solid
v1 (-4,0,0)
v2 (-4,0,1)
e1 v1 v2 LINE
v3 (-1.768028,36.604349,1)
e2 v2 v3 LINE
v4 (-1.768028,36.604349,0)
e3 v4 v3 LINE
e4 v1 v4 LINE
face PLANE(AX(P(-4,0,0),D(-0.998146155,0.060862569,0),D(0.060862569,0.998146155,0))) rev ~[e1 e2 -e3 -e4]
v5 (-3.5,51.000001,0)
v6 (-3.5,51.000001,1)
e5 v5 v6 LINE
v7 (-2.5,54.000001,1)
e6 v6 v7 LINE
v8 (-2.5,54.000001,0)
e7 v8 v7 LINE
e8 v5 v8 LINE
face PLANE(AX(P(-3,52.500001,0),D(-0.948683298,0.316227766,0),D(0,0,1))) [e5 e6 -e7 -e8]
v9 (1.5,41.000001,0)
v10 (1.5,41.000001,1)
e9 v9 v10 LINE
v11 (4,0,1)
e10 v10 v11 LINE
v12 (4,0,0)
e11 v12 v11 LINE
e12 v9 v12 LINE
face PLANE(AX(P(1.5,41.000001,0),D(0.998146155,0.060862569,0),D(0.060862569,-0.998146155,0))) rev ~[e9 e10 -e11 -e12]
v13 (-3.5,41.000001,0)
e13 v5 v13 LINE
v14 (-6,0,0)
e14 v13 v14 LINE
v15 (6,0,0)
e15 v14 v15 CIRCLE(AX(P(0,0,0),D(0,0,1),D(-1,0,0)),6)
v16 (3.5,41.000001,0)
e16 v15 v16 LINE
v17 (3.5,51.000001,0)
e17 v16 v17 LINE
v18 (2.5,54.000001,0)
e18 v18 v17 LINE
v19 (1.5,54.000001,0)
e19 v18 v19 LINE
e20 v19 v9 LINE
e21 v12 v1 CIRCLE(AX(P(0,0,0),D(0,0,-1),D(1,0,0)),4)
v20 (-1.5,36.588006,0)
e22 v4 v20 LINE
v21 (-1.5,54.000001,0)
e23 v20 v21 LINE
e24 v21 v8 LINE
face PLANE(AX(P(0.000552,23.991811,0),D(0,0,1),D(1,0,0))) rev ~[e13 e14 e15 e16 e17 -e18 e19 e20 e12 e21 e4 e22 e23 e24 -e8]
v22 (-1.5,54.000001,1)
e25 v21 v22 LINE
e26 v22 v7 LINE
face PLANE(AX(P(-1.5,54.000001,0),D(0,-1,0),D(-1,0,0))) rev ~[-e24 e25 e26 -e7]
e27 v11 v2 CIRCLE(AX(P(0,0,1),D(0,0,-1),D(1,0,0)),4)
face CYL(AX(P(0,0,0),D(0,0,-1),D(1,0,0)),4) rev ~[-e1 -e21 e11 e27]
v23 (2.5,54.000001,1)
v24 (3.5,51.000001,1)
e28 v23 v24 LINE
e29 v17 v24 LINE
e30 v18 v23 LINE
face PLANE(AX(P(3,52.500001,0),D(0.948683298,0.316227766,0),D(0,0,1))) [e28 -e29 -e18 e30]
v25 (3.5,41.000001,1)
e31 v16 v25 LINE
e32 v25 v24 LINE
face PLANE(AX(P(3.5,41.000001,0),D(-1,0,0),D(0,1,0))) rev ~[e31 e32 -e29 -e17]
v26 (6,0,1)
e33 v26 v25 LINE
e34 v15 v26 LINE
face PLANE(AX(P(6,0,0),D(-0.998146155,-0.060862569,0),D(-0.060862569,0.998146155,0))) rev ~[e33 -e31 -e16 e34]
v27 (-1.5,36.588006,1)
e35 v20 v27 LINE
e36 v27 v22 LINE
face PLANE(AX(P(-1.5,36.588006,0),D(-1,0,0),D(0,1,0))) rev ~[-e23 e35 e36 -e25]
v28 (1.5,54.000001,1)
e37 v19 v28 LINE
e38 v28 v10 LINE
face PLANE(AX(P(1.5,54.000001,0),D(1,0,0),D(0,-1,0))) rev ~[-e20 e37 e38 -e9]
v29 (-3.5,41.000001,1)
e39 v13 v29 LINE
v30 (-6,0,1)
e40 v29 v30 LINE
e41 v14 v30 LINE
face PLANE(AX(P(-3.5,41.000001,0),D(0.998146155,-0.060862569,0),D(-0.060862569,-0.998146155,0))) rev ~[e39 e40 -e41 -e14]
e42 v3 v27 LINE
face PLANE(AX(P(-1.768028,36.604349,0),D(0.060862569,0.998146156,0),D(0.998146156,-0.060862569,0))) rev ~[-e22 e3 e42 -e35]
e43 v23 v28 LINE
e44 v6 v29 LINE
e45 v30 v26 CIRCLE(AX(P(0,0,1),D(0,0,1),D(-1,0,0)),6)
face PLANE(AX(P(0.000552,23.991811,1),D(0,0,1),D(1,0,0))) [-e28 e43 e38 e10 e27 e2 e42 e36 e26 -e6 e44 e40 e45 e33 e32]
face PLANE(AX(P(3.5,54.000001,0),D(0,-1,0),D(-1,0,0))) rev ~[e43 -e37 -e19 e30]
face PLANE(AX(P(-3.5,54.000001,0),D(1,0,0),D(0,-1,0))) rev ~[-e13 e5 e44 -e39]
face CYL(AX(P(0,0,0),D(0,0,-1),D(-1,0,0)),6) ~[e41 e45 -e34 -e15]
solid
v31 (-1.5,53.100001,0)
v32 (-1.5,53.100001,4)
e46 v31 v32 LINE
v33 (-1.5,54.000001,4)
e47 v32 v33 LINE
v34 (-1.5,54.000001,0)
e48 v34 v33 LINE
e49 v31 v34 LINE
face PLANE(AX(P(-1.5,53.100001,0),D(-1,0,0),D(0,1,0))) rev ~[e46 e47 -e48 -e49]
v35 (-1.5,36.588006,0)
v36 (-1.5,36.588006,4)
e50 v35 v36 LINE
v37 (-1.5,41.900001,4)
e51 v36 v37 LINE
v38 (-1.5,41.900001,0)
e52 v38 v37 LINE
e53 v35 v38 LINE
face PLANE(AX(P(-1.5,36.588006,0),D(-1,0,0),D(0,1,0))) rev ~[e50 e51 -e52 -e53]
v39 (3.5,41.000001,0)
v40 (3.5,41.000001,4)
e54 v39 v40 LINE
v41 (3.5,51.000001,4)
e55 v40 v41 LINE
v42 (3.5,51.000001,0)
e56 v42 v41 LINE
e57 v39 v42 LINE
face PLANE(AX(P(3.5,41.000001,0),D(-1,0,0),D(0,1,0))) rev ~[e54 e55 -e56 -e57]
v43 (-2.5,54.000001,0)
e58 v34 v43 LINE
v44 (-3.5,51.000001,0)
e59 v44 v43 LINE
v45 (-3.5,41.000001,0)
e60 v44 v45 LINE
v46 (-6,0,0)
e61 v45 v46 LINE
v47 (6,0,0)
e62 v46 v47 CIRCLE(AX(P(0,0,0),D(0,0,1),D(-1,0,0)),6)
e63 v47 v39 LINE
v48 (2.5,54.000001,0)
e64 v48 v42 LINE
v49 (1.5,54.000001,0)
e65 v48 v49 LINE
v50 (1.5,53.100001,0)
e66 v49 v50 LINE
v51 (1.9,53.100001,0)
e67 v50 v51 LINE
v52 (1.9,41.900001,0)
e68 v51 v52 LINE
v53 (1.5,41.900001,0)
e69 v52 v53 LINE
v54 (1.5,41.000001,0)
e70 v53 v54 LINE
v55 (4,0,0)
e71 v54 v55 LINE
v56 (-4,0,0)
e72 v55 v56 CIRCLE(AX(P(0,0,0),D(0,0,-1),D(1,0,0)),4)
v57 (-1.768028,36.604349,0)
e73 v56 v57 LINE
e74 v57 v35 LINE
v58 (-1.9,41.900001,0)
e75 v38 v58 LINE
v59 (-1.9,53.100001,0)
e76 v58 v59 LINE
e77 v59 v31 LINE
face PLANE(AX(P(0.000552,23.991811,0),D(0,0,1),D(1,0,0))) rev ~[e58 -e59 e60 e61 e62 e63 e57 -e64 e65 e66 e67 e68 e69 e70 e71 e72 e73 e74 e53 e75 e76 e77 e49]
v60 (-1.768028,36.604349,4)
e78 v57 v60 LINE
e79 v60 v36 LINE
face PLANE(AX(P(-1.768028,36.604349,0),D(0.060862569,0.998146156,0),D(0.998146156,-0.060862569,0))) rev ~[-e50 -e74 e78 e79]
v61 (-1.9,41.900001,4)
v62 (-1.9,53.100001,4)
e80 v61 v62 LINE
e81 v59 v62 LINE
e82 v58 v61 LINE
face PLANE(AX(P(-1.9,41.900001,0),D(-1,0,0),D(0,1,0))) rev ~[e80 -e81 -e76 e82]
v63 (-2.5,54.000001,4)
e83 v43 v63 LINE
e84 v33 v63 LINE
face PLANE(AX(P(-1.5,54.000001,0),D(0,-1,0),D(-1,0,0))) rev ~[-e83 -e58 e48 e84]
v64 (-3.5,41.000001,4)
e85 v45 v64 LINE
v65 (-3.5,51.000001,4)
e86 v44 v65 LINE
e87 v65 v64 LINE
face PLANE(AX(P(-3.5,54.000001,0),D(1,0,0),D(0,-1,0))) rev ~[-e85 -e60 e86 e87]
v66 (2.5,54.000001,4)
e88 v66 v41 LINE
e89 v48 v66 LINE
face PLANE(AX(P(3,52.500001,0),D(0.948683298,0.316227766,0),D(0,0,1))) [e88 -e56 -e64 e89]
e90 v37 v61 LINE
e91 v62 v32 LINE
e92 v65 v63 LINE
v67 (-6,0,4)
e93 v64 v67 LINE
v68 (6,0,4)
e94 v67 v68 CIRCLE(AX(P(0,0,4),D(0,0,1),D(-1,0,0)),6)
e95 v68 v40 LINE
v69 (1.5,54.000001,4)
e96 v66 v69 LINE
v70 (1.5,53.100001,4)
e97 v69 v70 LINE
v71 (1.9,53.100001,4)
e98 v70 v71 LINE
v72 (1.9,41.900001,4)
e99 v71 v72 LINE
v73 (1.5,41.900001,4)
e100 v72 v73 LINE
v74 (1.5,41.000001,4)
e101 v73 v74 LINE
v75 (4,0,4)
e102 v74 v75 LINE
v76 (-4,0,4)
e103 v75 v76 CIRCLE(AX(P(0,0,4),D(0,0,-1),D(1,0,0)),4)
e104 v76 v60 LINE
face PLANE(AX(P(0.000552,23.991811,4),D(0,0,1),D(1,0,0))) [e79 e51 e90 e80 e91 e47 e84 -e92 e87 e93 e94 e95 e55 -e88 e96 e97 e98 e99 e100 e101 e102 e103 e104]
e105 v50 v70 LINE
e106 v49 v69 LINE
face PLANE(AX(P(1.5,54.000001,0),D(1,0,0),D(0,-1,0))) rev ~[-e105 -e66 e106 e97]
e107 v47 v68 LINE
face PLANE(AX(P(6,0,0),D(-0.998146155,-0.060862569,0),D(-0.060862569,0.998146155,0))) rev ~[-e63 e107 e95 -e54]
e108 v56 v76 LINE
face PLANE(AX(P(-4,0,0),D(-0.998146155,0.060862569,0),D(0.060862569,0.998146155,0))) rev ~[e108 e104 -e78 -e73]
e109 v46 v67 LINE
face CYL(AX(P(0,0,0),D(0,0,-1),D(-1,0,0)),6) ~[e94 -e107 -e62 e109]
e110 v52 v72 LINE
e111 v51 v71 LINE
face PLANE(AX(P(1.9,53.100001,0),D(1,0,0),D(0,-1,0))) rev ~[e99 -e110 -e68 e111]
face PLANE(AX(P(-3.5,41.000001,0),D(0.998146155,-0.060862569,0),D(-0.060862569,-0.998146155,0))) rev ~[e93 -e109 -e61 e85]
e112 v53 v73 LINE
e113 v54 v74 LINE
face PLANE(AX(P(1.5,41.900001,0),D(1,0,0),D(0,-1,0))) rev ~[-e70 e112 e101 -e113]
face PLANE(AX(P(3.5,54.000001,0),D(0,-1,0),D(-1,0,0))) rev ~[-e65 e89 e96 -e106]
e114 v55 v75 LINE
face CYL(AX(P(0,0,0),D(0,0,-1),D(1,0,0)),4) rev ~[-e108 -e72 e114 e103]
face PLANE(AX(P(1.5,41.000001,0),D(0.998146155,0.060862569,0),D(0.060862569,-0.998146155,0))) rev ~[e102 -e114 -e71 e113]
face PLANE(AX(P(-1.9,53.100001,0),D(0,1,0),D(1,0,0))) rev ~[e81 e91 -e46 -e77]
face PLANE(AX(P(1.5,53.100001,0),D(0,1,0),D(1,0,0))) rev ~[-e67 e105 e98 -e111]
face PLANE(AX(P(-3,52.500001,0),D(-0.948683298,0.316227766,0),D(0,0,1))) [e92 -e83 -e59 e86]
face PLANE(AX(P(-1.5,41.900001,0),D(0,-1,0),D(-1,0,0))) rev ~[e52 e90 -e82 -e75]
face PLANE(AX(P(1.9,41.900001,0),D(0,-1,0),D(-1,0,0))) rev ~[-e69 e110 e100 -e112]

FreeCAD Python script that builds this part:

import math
import FreeCAD as App
import Part
import Sketcher
Q = App.Units.Quantity


def edges_at(feature, points):
    """Names of the edges that pass closest to the given points."""
    edges = feature.Shape.Edges
    near = lambda p: min(range(len(edges)), key=lambda i: edges[i].distToShape(Part.Vertex(*p))[0])
    return sorted({f"Edge{near(p) + 1}" for p in points})

doc = App.newDocument("Part")
body = doc.addObject("PartDesign::Body", "Body")

sketch1 = doc.addObject("Sketcher::SketchObject", "Sketch")
body.addObject(sketch1)
sketch1.AttachmentSupport = (doc.XY_Plane, [""])
sketch1.MapMode = "FlatFace"
sketch1.addGeometry([
    Part.ArcOfCircle(Part.Circle(App.Vector(0, 0, 0), App.Vector(0, 0, 1), 4), math.radians(180), math.radians(360)),
    Part.LineSegment(App.Vector(-4, 0, 0), App.Vector(-1.768028, 36.604349, 0)),
    Part.LineSegment(App.Vector(-1.768028, 36.604349, 0), App.Vector(-1.5, 36.588006, 0)),
    Part.LineSegment(App.Vector(-1.5, 36.588006, 0), App.Vector(-1.5, 54.000001, 0)),
    Part.LineSegment(App.Vector(-1.5, 54.000001, 0), App.Vector(-3.5, 54.000001, 0)),
    Part.LineSegment(App.Vector(-3.5, 54.000001, 0), App.Vector(-3.5, 41.000001, 0)),
    Part.LineSegment(App.Vector(-3.5, 41.000001, 0), App.Vector(-6, 0, 0)),
    Part.ArcOfCircle(Part.Circle(App.Vector(0, 0, 0), App.Vector(0, 0, 1), 6), math.radians(180), math.radians(360)),
    Part.LineSegment(App.Vector(6, 0, 0), App.Vector(3.5, 41.000001, 0)),
    Part.LineSegment(App.Vector(3.5, 41.000001, 0), App.Vector(3.5, 54.000001, 0)),
    Part.LineSegment(App.Vector(3.5, 54.000001, 0), App.Vector(1.5, 54.000001, 0)),
    Part.LineSegment(App.Vector(1.5, 54.000001, 0), App.Vector(1.5, 41.000001, 0)),
    Part.LineSegment(App.Vector(1.5, 41.000001, 0), App.Vector(4, 0, 0)),
], False)
sketch1.addConstraint([
    Sketcher.Constraint("Coincident", 0, 1, 1, 1),
    Sketcher.Constraint("Coincident", 1, 2, 2, 1),
    Sketcher.Constraint("Coincident", 2, 2, 3, 1),
    Sketcher.Constraint("Coincident", 3, 2, 4, 1),
    Sketcher.Constraint("Coincident", 4, 2, 5, 1),
    Sketcher.Constraint("Coincident", 5, 2, 6, 1),
    Sketcher.Constraint("Coincident", 6, 2, 7, 1),
    Sketcher.Constraint("Coincident", 7, 2, 8, 1),
    Sketcher.Constraint("Coincident", 8, 2, 9, 1),
    Sketcher.Constraint("Coincident", 9, 2, 10, 1),
    Sketcher.Constraint("Coincident", 10, 2, 11, 1),
    Sketcher.Constraint("Coincident", 11, 2, 12, 1),
    Sketcher.Constraint("Coincident", 12, 2, 0, 2),
    Sketcher.Constraint("Vertical", 3),
    Sketcher.Constraint("Horizontal", 4),
    Sketcher.Constraint("Vertical", 5),
    Sketcher.Constraint("Vertical", 9),
    Sketcher.Constraint("Horizontal", 10),
    Sketcher.Constraint("Vertical", 11),
    Sketcher.Constraint("Coincident", 0, 3, -1, 1),
    Sketcher.Constraint("Coincident", 7, 3, -1, 1),
    Sketcher.Constraint("Symmetric", 5, 2, 8, 2, -2),
    Sketcher.Constraint("Symmetric", 3, 2, 10, 2, -2),
    Sketcher.Constraint("PointOnObject", 0, 1, -1),
    Sketcher.Constraint("PointOnObject", 6, 2, -1),
    Sketcher.Constraint("PointOnObject", 7, 2, -1),
    Sketcher.Constraint("PointOnObject", 12, 2, -1),
    Sketcher.Constraint("Perpendicular", 1, 2),
    Sketcher.Constraint("Perpendicular", 2, 6),
    Sketcher.Constraint("Parallel", 8, 12),
    Sketcher.Constraint("Horizontal", 8, 2, 11, 2),
    Sketcher.Constraint("Radius", 0, Q("4 mm")),
    Sketcher.Constraint("Radius", 7, Q("6 mm")),
    Sketcher.Constraint("DistanceY", 5, 2, 5, 1, Q("13 mm")),
    Sketcher.Constraint("DistanceY", -1, 1, 3, 2, Q("54.000001 mm")),
    Sketcher.Constraint("DistanceX", 2, 2, 8, 2, Q("5 mm")),
    Sketcher.Constraint("DistanceY", 3, 1, 3, 2, Q("17.411995 mm")),
])
pad1 = doc.addObject("PartDesign::Pad", "Pad")
body.addObject(pad1)
pad1.Profile = sketch1
pad1.Length = 1
doc.recompute()

chamfer = doc.addObject("PartDesign::Chamfer", "Chamfer")
body.addObject(chamfer)
chamfer.Base = (pad1, edges_at(pad1, [(-3.5, 54, 0.5)]))
chamfer.ChamferType = "Two distances"
chamfer.Size = 3
chamfer.Size2 = 1
doc.recompute()

chamfer2 = doc.addObject("PartDesign::Chamfer", "Chamfer001")
body.addObject(chamfer2)
chamfer2.Base = (chamfer, edges_at(chamfer, [(3.5, 54, 0.5)]))
chamfer2.ChamferType = "Two distances"
chamfer2.Size = 1
chamfer2.Size2 = 3
chamfer2.FlipDirection = True
body2 = doc.addObject("PartDesign::Body", "Body001")

sketch2 = doc.addObject("Sketcher::SketchObject", "Sketch001")
body2.addObject(sketch2)
sketch2.AttachmentSupport = (doc.getObject("XY_Plane001"), [""])
sketch2.MapMode = "FlatFace"
sketch2.addGeometry([
    Part.ArcOfCircle(Part.Circle(App.Vector(0, 0, 0), App.Vector(0, 0, 1), 4), math.radians(180), math.radians(360)),
    Part.LineSegment(App.Vector(-4, 0, 0), App.Vector(-1.768028, 36.604349, 0)),
    Part.LineSegment(App.Vector(-1.768028, 36.604349, 0), App.Vector(-1.5, 36.588006, 0)),
    Part.LineSegment(App.Vector(-1.5, 36.588006, 0), App.Vector(-1.5, 41.900001, 0)),
    Part.LineSegment(App.Vector(-1.5, 41.900001, 0), App.Vector(-1.9, 41.900001, 0)),
    Part.LineSegment(App.Vector(-1.9, 41.900001, 0), App.Vector(-1.9, 53.100001, 0)),
    Part.LineSegment(App.Vector(-1.9, 53.100001, 0), App.Vector(-1.5, 53.100001, 0)),
    Part.LineSegment(App.Vector(-1.5, 53.100001, 0), App.Vector(-1.5, 54.000001, 0)),
    Part.LineSegment(App.Vector(-1.5, 54.000001, 0), App.Vector(-3.5, 54.000001, 0)),
    Part.LineSegment(App.Vector(-3.5, 54.000001, 0), App.Vector(-3.5, 41.000001, 0)),
    Part.LineSegment(App.Vector(-3.5, 41.000001, 0), App.Vector(-6, 0, 0)),
    Part.ArcOfCircle(Part.Circle(App.Vector(0, 0, 0), App.Vector(0, 0, 1), 6), math.radians(180), math.radians(360)),
    Part.LineSegment(App.Vector(6, 0, 0), App.Vector(3.5, 41.000001, 0)),
    Part.LineSegment(App.Vector(3.5, 41.000001, 0), App.Vector(3.5, 54.000001, 0)),
    Part.LineSegment(App.Vector(3.5, 54.000001, 0), App.Vector(1.5, 54.000001, 0)),
    Part.LineSegment(App.Vector(1.5, 54.000001, 0), App.Vector(1.5, 53.100001, 0)),
    Part.LineSegment(App.Vector(1.5, 53.100001, 0), App.Vector(1.9, 53.100001, 0)),
    Part.LineSegment(App.Vector(1.9, 53.100001, 0), App.Vector(1.9, 41.900001, 0)),
    Part.LineSegment(App.Vector(1.9, 41.900001, 0), App.Vector(1.5, 41.900001, 0)),
    Part.LineSegment(App.Vector(1.5, 41.900001, 0), App.Vector(1.5, 41.000001, 0)),
    Part.LineSegment(App.Vector(1.5, 41.000001, 0), App.Vector(4, 0, 0)),
], False)
sketch2.addConstraint([
    Sketcher.Constraint("Coincident", 0, 1, 1, 1),
    Sketcher.Constraint("Coincident", 1, 2, 2, 1),
    Sketcher.Constraint("Coincident", 2, 2, 3, 1),
    Sketcher.Constraint("Coincident", 3, 2, 4, 1),
    Sketcher.Constraint("Coincident", 4, 2, 5, 1),
    Sketcher.Constraint("Coincident", 5, 2, 6, 1),
    Sketcher.Constraint("Coincident", 6, 2, 7, 1),
    Sketcher.Constraint("Coincident", 7, 2, 8, 1),
    Sketcher.Constraint("Coincident", 8, 2, 9, 1),
    Sketcher.Constraint("Coincident", 9, 2, 10, 1),
    Sketcher.Constraint("Coincident", 10, 2, 11, 1),
    Sketcher.Constraint("Coincident", 11, 2, 12, 1),
    Sketcher.Constraint("Coincident", 12, 2, 13, 1),
    Sketcher.Constraint("Coincident", 13, 2, 14, 1),
    Sketcher.Constraint("Coincident", 14, 2, 15, 1),
    Sketcher.Constraint("Coincident", 15, 2, 16, 1),
    Sketcher.Constraint("Coincident", 16, 2, 17, 1),
    Sketcher.Constraint("Coincident", 17, 2, 18, 1),
    Sketcher.Constraint("Coincident", 18, 2, 19, 1),
    Sketcher.Constraint("Coincident", 19, 2, 20, 1),
    Sketcher.Constraint("Coincident", 20, 2, 0, 2),
    Sketcher.Constraint("Vertical", 3),
    Sketcher.Constraint("Horizontal", 4),
    Sketcher.Constraint("Vertical", 5),
    Sketcher.Constraint("Horizontal", 6),
    Sketcher.Constraint("Vertical", 7),
    Sketcher.Constraint("Horizontal", 8),
    Sketcher.Constraint("Vertical", 9),
    Sketcher.Constraint("Vertical", 13),
    Sketcher.Constraint("Horizontal", 14),
    Sketcher.Constraint("Vertical", 15),
    Sketcher.Constraint("Horizontal", 16),
    Sketcher.Constraint("Vertical", 17),
    Sketcher.Constraint("Horizontal", 18),
    Sketcher.Constraint("Vertical", 19),
    Sketcher.Constraint("Coincident", 0, 3, -1, 1),
    Sketcher.Constraint("Coincident", 11, 3, -1, 1),
    Sketcher.Constraint("Symmetric", 9, 2, 12, 2, -2),
    Sketcher.Constraint("Symmetric", 7, 2, 14, 2, -2),
    Sketcher.Constraint("Symmetric", 5, 2, 16, 2, -2),
    Sketcher.Constraint("Symmetric", 3, 2, 18, 2, -2),
    Sketcher.Constraint("PointOnObject", 0, 1, -1),
    Sketcher.Constraint("PointOnObject", 10, 2, -1),
    Sketcher.Constraint("PointOnObject", 11, 2, -1),
    Sketcher.Constraint("PointOnObject", 20, 2, -1),
    Sketcher.Constraint("Perpendicular", 1, 2),
    Sketcher.Constraint("Perpendicular", 2, 10),
    Sketcher.Constraint("Parallel", 12, 20),
    Sketcher.Constraint("Horizontal", 12, 2, 19, 2),
    Sketcher.Constraint("Vertical", 3, 2, 6, 2),
    Sketcher.Constraint("Equal", 15, 19),
    Sketcher.Constraint("Radius", 0, Q("4 mm")),
    Sketcher.Constraint("Radius", 11, Q("6 mm")),
    Sketcher.Constraint("DistanceY", 9, 2, 9, 1, Q("13 mm")),
    Sketcher.Constraint("DistanceX", 4, 2, 4, 1, Q("0.4 mm")),
    Sketcher.Constraint("DistanceY", 5, 1, 5, 2, Q("11.2 mm")),
    Sketcher.Constraint("DistanceY", -1, 1, 7, 2, Q("54.000001 mm")),
    Sketcher.Constraint("DistanceX", 3, 2, 12, 2, Q("5 mm")),
    Sketcher.Constraint("DistanceY", 3, 1, 3, 2, Q("5.311995 mm")),
])
pad2 = doc.addObject("PartDesign::Pad", "Pad001")
body2.addObject(pad2)
pad2.Profile = sketch2
pad2.Length = 4
doc.recompute()

chamfer3 = doc.addObject("PartDesign::Chamfer", "Chamfer002")
body2.addObject(chamfer3)
chamfer3.Base = (pad2, edges_at(pad2, [(-3.5, 54, 2)]))
chamfer3.ChamferType = "Two distances"
chamfer3.Size = 3
chamfer3.Size2 = 1
doc.recompute()

chamfer4 = doc.addObject("PartDesign::Chamfer", "Chamfer003")
body2.addObject(chamfer4)
chamfer4.Base = (chamfer3, edges_at(chamfer3, [(3.5, 54, 2)]))
chamfer4.ChamferType = "Two distances"
chamfer4.Size = 1
chamfer4.Size2 = 3
chamfer4.FlipDirection = True

doc.recompute()
